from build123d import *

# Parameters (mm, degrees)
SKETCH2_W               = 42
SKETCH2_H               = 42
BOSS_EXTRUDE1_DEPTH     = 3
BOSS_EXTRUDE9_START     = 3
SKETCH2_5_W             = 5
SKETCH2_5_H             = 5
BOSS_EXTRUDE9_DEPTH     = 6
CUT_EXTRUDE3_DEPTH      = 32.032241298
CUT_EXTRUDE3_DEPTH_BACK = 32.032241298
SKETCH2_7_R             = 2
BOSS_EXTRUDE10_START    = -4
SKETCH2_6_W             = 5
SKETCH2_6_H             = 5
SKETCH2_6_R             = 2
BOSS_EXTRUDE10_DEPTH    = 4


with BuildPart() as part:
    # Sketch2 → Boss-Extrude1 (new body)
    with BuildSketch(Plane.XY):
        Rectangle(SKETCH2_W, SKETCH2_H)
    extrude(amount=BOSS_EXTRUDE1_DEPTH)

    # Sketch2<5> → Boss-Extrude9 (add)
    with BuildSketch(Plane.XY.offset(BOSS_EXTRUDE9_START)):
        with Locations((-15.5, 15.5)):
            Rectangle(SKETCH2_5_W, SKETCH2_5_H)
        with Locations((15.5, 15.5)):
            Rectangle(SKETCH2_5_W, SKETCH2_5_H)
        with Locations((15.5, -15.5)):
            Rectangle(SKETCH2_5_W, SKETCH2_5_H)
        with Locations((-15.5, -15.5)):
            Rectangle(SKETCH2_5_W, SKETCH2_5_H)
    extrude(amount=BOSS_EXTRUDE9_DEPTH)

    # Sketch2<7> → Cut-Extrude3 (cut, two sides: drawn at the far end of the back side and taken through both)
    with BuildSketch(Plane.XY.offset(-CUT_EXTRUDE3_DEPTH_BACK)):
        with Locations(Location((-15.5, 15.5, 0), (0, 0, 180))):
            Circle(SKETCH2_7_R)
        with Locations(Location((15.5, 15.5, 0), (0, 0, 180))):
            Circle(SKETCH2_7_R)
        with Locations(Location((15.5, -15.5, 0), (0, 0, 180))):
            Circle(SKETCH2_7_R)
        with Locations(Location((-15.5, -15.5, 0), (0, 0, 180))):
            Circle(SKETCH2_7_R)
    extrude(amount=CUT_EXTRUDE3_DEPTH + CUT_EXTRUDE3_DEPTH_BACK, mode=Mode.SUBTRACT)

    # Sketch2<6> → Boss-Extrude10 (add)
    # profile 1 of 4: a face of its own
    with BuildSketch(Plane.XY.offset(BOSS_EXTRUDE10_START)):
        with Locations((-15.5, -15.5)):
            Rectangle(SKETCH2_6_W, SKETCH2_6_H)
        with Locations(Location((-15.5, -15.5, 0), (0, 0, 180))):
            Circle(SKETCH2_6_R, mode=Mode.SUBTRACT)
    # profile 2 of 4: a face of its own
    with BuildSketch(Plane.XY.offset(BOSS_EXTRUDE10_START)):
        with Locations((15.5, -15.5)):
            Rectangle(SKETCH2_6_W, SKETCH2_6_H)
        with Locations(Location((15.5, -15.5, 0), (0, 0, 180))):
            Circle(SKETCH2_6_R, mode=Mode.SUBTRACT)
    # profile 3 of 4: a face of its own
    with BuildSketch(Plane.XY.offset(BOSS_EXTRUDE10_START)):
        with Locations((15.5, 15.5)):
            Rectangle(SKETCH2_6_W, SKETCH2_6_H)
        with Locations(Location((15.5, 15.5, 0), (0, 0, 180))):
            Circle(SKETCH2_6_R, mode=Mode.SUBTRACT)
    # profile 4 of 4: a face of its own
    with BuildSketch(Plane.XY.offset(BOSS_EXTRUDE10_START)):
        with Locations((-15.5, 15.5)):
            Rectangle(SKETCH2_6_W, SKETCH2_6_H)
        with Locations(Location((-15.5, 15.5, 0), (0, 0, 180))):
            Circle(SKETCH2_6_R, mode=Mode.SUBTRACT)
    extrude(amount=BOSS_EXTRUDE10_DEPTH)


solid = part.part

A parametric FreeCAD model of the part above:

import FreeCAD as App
import Part
import Sketcher
from FreeCAD import Vector


def add_polygon(sketch, points):
    """Adds a closed chain of lines whose ends are joined by coincident constraints."""
    first, n = sketch.GeometryCount, len(points)
    for a, b in zip(points, points[1:] + points[:1]):
        sketch.addGeometry(Part.LineSegment(App.Vector(*a, 0), App.Vector(*b, 0)), False)
    for i in range(n):
        sketch.addConstraint(Sketcher.Constraint("Coincident", first + i, 2, first + (i + 1) % n, 1))

doc = App.newDocument("Part")
body = doc.addObject("PartDesign::Body", "Body")

# Sketch on XY plane
sketch1 = body.newObject("Sketcher::SketchObject", "Sketch")
sketch1.AttachmentSupport = (doc.getObject("XY_Plane"), [""])
sketch1.MapMode = "FlatFace"
add_polygon(sketch1, [(-21, 21), (-21, -21), (21, -21), (21, 21)])  # lines 0-3
sketch1.addConstraint(Sketcher.Constraint("Vertical", 0))
sketch1.addConstraint(Sketcher.Constraint("Horizontal", 1))
sketch1.addConstraint(Sketcher.Constraint("Vertical", 2))
sketch1.addConstraint(Sketcher.Constraint("Horizontal", 3))
sketch1.addConstraint(Sketcher.Constraint("Symmetric", 0, 2, 2, 2, -1, 1))
sketch1.addConstraint(Sketcher.Constraint("Equal", 3, 0))
sketch1.addConstraint(Sketcher.Constraint("DistanceX", 1, 1, 1, 2, 42.0))
pad1 = body.newObject("PartDesign::Pad", "Pad")
pad1.Profile = sketch1
pad1.Length = 3

# Sketch on XY plane
sketch2 = body.newObject("Sketcher::SketchObject", "Sketch001")
sketch2.AttachmentSupport = (doc.getObject("XY_Plane"), [""])
sketch2.MapMode = "FlatFace"
sketch2.AttachmentOffset = App.Placement(Vector(0, 0, 3), App.Rotation())
add_polygon(sketch2, [(-18, 18), (-18, 13), (-13, 13), (-13, 18)])  # lines 0-3
add_polygon(sketch2, [(13, 18), (13, 13), (18, 13), (18, 18)])  # lines 4-7
add_polygon(sketch2, [(13, -13), (13, -18), (18, -18), (18, -13)])  # lines 8-11
add_polygon(sketch2, [(-18, -13), (-18, -18), (-13, -18), (-13, -13)])  # lines 12-15
sketch2.addConstraint(Sketcher.Constraint("Vertical", 0))
sketch2.addConstraint(Sketcher.Constraint("Horizontal", 1))
sketch2.addConstraint(Sketcher.Constraint("Vertical", 2))
sketch2.addConstraint(Sketcher.Constraint("Horizontal", 3))
sketch2.addConstraint(Sketcher.Constraint("Vertical", 4))
sketch2.addConstraint(Sketcher.Constraint("Horizontal", 5))
sketch2.addConstraint(Sketcher.Constraint("Vertical", 6))
sketch2.addConstraint(Sketcher.Constraint("Horizontal", 7))
sketch2.addConstraint(Sketcher.Constraint("Vertical", 8))
sketch2.addConstraint(Sketcher.Constraint("Horizontal", 9))
sketch2.addConstraint(Sketcher.Constraint("Vertical", 10))
sketch2.addConstraint(Sketcher.Constraint("Horizontal", 11))
sketch2.addConstraint(Sketcher.Constraint("Vertical", 12))
sketch2.addConstraint(Sketcher.Constraint("Horizontal", 13))
sketch2.addConstraint(Sketcher.Constraint("Vertical", 14))
sketch2.addConstraint(Sketcher.Constraint("Horizontal", 15))
sketch2.addConstraint(Sketcher.Constraint("Symmetric", 2, 2, 8, 2, -1, 1))
sketch2.addConstraint(Sketcher.Constraint("Symmetric", 0, 2, 10, 2, -1, 1))
sketch2.addConstraint(Sketcher.Constraint("Symmetric", 6, 2, 12, 2, -1, 1))
sketch2.addConstraint(Sketcher.Constraint("Symmetric", 4, 2, 14, 2, -1, 1))
sketch2.addConstraint(Sketcher.Constraint("Symmetric", 1, 2, 4, 2, -2))
sketch2.addConstraint(Sketcher.Constraint("Symmetric", 3, 2, 6, 2, -2))
sketch2.addConstraint(Sketcher.Constraint("Equal", 15, 0))
sketch2.addConstraint(Sketcher.Constraint("DistanceX", 1, 1, 1, 2, 5.0))
sketch2.addConstraint(Sketcher.Constraint("DistanceX", 0, 2, -1, 1, 18.0))
sketch2.addConstraint(Sketcher.Constraint("DistanceY", -1, 1, 0, 2, 13.0))
pad2 = body.newObject("PartDesign::Pad", "Pad001")
pad2.Profile = sketch2
pad2.Length = 6

# Sketch on XY plane
sketch3 = body.newObject("Sketcher::SketchObject", "Sketch002")
sketch3.AttachmentSupport = (doc.getObject("XY_Plane"), [""])
sketch3.MapMode = "FlatFace"
sketch3.addGeometry(Part.Circle(Vector(-15.5, 15.5, 0), Vector(0, 0, 1), 2), False)
sketch3.addGeometry(Part.Circle(Vector(15.5, 15.5, 0), Vector(0, 0, 1), 2), False)
sketch3.addGeometry(Part.Circle(Vector(15.5, -15.5, 0), Vector(0, 0, 1), 2), False)
sketch3.addGeometry(Part.Circle(Vector(-15.5, -15.5, 0), Vector(0, 0, 1), 2), False)
sketch3.addConstraint(Sketcher.Constraint("Equal", 0, 1))
sketch3.addConstraint(Sketcher.Constraint("Equal", 1, 2))
sketch3.addConstraint(Sketcher.Constraint("Equal", 2, 3))
sketch3.addConstraint(Sketcher.Constraint("Symmetric", 0, 3, 2, 3, -1, 1))
sketch3.addConstraint(Sketcher.Constraint("Symmetric", 1, 3, 3, 3, -1, 1))
sketch3.addConstraint(Sketcher.Constraint("Symmetric", 0, 3, 1, 3, -2))
sketch3.addConstraint(Sketcher.Constraint("Diameter", 0, 4.0))
sketch3.addConstraint(Sketcher.Constraint("DistanceX", 0, 3, 1, 3, 31.0))
sketch3.addConstraint(Sketcher.Constraint("DistanceY", 2, 3, 1, 3, 31.0))
pocket1 = body.newObject("PartDesign::Pocket", "Pocket")
pocket1.Profile = sketch3
pocket1.Type = "ThroughAll"
pocket1.Midplane = True

# Sketch on XY plane
sketch4 = body.newObject("Sketcher::SketchObject", "Sketch003")
sketch4.AttachmentSupport = (doc.getObject("XY_Plane"), [""])
sketch4.MapMode = "FlatFace"
sketch4.AttachmentOffset = App.Placement(Vector(0, 0, -4), App.Rotation())
add_polygon(sketch4, [(-18, -13), (-18, -18), (-13, -18), (-13, -13)])  # lines 0-3
sketch4.addGeometry(Part.Circle(Vector(-15.5, -15.5, 0), Vector(0, 0, 1), 2), False)  # 4
add_polygon(sketch4, [(13, -13), (13, -18), (18, -18), (18, -13)])  # lines 5-8
sketch4.addGeometry(Part.Circle(Vector(15.5, -15.5, 0), Vector(0, 0, 1), 2), False)  # 9
add_polygon(sketch4, [(13, 18), (13, 13), (18, 13), (18, 18)])  # lines 10-13
sketch4.addGeometry(Part.Circle(Vector(15.5, 15.5, 0), Vector(0, 0, 1), 2), False)  # 14
add_polygon(sketch4, [(-18, 18), (-18, 13), (-13, 13), (-13, 18)])  # lines 15-18
sketch4.addGeometry(Part.Circle(Vector(-15.5, 15.5, 0), Vector(0, 0, 1), 2), False)  # 19
sketch4.addConstraint(Sketcher.Constraint("Vertical", 0))
sketch4.addConstraint(Sketcher.Constraint("Horizontal", 1))
sketch4.addConstraint(Sketcher.Constraint("Vertical", 2))
sketch4.addConstraint(Sketcher.Constraint("Horizontal", 3))
sketch4.addConstraint(Sketcher.Constraint("Vertical", 5))
sketch4.addConstraint(Sketcher.Constraint("Horizontal", 6))
sketch4.addConstraint(Sketcher.Constraint("Vertical", 7))
sketch4.addConstraint(Sketcher.Constraint("Horizontal", 8))
sketch4.addConstraint(Sketcher.Constraint("Vertical", 10))
sketch4.addConstraint(Sketcher.Constraint("Horizontal", 11))
sketch4.addConstraint(Sketcher.Constraint("Vertical", 12))
sketch4.addConstraint(Sketcher.Constraint("Horizontal", 13))
sketch4.addConstraint(Sketcher.Constraint("Vertical", 15))
sketch4.addConstraint(Sketcher.Constraint("Horizontal", 16))
sketch4.addConstraint(Sketcher.Constraint("Vertical", 17))
sketch4.addConstraint(Sketcher.Constraint("Horizontal", 18))
sketch4.addConstraint(Sketcher.Constraint("Equal", 4, 9))
sketch4.addConstraint(Sketcher.Constraint("Equal", 9, 14))
sketch4.addConstraint(Sketcher.Constraint("Equal", 14, 19))
sketch4.addConstraint(Sketcher.Constraint("Symmetric", 4, 3, 14, 3, -1, 1))
sketch4.addConstraint(Sketcher.Constraint("Symmetric", 9, 3, 19, 3, -1, 1))
sketch4.addConstraint(Sketcher.Constraint("Symmetric", 2, 2, 10, 2, -1, 1))
sketch4.addConstraint(Sketcher.Constraint("Symmetric", 0, 2, 12, 2, -1, 1))
sketch4.addConstraint(Sketcher.Constraint("Symmetric", 7, 2, 15, 2, -1, 1))
sketch4.addConstraint(Sketcher.Constraint("Symmetric", 5, 2, 17, 2, -1, 1))
sketch4.addConstraint(Sketcher.Constraint("Symmetric", 4, 3, 9, 3, -2))
sketch4.addConstraint(Sketcher.Constraint("Symmetric", 1, 2, 5, 2, -2))
sketch4.addConstraint(Sketcher.Constraint("Symmetric", 3, 2, 7, 2, -2))
sketch4.addConstraint(Sketcher.Constraint("Equal", 18, 0))
sketch4.addConstraint(Sketcher.Constraint("Diameter", 4, 4.0))
sketch4.addConstraint(Sketcher.Constraint("DistanceX", 1, 1, 1, 2, 5.0))
sketch4.addConstraint(Sketcher.Constraint("DistanceX", 0, 2, -1, 1, 18.0))
sketch4.addConstraint(Sketcher.Constraint("DistanceY", 0, 2, -1, 1, 18.0))
sketch4.addConstraint(Sketcher.Constraint("DistanceX", 4, 3, 9, 3, 31.0))
sketch4.addConstraint(Sketcher.Constraint("DistanceY", 9, 3, 14, 3, 31.0))
pad3 = body.newObject("PartDesign::Pad", "Pad002")
pad3.Profile = sketch4
pad3.Length = 4

doc.recompute()
